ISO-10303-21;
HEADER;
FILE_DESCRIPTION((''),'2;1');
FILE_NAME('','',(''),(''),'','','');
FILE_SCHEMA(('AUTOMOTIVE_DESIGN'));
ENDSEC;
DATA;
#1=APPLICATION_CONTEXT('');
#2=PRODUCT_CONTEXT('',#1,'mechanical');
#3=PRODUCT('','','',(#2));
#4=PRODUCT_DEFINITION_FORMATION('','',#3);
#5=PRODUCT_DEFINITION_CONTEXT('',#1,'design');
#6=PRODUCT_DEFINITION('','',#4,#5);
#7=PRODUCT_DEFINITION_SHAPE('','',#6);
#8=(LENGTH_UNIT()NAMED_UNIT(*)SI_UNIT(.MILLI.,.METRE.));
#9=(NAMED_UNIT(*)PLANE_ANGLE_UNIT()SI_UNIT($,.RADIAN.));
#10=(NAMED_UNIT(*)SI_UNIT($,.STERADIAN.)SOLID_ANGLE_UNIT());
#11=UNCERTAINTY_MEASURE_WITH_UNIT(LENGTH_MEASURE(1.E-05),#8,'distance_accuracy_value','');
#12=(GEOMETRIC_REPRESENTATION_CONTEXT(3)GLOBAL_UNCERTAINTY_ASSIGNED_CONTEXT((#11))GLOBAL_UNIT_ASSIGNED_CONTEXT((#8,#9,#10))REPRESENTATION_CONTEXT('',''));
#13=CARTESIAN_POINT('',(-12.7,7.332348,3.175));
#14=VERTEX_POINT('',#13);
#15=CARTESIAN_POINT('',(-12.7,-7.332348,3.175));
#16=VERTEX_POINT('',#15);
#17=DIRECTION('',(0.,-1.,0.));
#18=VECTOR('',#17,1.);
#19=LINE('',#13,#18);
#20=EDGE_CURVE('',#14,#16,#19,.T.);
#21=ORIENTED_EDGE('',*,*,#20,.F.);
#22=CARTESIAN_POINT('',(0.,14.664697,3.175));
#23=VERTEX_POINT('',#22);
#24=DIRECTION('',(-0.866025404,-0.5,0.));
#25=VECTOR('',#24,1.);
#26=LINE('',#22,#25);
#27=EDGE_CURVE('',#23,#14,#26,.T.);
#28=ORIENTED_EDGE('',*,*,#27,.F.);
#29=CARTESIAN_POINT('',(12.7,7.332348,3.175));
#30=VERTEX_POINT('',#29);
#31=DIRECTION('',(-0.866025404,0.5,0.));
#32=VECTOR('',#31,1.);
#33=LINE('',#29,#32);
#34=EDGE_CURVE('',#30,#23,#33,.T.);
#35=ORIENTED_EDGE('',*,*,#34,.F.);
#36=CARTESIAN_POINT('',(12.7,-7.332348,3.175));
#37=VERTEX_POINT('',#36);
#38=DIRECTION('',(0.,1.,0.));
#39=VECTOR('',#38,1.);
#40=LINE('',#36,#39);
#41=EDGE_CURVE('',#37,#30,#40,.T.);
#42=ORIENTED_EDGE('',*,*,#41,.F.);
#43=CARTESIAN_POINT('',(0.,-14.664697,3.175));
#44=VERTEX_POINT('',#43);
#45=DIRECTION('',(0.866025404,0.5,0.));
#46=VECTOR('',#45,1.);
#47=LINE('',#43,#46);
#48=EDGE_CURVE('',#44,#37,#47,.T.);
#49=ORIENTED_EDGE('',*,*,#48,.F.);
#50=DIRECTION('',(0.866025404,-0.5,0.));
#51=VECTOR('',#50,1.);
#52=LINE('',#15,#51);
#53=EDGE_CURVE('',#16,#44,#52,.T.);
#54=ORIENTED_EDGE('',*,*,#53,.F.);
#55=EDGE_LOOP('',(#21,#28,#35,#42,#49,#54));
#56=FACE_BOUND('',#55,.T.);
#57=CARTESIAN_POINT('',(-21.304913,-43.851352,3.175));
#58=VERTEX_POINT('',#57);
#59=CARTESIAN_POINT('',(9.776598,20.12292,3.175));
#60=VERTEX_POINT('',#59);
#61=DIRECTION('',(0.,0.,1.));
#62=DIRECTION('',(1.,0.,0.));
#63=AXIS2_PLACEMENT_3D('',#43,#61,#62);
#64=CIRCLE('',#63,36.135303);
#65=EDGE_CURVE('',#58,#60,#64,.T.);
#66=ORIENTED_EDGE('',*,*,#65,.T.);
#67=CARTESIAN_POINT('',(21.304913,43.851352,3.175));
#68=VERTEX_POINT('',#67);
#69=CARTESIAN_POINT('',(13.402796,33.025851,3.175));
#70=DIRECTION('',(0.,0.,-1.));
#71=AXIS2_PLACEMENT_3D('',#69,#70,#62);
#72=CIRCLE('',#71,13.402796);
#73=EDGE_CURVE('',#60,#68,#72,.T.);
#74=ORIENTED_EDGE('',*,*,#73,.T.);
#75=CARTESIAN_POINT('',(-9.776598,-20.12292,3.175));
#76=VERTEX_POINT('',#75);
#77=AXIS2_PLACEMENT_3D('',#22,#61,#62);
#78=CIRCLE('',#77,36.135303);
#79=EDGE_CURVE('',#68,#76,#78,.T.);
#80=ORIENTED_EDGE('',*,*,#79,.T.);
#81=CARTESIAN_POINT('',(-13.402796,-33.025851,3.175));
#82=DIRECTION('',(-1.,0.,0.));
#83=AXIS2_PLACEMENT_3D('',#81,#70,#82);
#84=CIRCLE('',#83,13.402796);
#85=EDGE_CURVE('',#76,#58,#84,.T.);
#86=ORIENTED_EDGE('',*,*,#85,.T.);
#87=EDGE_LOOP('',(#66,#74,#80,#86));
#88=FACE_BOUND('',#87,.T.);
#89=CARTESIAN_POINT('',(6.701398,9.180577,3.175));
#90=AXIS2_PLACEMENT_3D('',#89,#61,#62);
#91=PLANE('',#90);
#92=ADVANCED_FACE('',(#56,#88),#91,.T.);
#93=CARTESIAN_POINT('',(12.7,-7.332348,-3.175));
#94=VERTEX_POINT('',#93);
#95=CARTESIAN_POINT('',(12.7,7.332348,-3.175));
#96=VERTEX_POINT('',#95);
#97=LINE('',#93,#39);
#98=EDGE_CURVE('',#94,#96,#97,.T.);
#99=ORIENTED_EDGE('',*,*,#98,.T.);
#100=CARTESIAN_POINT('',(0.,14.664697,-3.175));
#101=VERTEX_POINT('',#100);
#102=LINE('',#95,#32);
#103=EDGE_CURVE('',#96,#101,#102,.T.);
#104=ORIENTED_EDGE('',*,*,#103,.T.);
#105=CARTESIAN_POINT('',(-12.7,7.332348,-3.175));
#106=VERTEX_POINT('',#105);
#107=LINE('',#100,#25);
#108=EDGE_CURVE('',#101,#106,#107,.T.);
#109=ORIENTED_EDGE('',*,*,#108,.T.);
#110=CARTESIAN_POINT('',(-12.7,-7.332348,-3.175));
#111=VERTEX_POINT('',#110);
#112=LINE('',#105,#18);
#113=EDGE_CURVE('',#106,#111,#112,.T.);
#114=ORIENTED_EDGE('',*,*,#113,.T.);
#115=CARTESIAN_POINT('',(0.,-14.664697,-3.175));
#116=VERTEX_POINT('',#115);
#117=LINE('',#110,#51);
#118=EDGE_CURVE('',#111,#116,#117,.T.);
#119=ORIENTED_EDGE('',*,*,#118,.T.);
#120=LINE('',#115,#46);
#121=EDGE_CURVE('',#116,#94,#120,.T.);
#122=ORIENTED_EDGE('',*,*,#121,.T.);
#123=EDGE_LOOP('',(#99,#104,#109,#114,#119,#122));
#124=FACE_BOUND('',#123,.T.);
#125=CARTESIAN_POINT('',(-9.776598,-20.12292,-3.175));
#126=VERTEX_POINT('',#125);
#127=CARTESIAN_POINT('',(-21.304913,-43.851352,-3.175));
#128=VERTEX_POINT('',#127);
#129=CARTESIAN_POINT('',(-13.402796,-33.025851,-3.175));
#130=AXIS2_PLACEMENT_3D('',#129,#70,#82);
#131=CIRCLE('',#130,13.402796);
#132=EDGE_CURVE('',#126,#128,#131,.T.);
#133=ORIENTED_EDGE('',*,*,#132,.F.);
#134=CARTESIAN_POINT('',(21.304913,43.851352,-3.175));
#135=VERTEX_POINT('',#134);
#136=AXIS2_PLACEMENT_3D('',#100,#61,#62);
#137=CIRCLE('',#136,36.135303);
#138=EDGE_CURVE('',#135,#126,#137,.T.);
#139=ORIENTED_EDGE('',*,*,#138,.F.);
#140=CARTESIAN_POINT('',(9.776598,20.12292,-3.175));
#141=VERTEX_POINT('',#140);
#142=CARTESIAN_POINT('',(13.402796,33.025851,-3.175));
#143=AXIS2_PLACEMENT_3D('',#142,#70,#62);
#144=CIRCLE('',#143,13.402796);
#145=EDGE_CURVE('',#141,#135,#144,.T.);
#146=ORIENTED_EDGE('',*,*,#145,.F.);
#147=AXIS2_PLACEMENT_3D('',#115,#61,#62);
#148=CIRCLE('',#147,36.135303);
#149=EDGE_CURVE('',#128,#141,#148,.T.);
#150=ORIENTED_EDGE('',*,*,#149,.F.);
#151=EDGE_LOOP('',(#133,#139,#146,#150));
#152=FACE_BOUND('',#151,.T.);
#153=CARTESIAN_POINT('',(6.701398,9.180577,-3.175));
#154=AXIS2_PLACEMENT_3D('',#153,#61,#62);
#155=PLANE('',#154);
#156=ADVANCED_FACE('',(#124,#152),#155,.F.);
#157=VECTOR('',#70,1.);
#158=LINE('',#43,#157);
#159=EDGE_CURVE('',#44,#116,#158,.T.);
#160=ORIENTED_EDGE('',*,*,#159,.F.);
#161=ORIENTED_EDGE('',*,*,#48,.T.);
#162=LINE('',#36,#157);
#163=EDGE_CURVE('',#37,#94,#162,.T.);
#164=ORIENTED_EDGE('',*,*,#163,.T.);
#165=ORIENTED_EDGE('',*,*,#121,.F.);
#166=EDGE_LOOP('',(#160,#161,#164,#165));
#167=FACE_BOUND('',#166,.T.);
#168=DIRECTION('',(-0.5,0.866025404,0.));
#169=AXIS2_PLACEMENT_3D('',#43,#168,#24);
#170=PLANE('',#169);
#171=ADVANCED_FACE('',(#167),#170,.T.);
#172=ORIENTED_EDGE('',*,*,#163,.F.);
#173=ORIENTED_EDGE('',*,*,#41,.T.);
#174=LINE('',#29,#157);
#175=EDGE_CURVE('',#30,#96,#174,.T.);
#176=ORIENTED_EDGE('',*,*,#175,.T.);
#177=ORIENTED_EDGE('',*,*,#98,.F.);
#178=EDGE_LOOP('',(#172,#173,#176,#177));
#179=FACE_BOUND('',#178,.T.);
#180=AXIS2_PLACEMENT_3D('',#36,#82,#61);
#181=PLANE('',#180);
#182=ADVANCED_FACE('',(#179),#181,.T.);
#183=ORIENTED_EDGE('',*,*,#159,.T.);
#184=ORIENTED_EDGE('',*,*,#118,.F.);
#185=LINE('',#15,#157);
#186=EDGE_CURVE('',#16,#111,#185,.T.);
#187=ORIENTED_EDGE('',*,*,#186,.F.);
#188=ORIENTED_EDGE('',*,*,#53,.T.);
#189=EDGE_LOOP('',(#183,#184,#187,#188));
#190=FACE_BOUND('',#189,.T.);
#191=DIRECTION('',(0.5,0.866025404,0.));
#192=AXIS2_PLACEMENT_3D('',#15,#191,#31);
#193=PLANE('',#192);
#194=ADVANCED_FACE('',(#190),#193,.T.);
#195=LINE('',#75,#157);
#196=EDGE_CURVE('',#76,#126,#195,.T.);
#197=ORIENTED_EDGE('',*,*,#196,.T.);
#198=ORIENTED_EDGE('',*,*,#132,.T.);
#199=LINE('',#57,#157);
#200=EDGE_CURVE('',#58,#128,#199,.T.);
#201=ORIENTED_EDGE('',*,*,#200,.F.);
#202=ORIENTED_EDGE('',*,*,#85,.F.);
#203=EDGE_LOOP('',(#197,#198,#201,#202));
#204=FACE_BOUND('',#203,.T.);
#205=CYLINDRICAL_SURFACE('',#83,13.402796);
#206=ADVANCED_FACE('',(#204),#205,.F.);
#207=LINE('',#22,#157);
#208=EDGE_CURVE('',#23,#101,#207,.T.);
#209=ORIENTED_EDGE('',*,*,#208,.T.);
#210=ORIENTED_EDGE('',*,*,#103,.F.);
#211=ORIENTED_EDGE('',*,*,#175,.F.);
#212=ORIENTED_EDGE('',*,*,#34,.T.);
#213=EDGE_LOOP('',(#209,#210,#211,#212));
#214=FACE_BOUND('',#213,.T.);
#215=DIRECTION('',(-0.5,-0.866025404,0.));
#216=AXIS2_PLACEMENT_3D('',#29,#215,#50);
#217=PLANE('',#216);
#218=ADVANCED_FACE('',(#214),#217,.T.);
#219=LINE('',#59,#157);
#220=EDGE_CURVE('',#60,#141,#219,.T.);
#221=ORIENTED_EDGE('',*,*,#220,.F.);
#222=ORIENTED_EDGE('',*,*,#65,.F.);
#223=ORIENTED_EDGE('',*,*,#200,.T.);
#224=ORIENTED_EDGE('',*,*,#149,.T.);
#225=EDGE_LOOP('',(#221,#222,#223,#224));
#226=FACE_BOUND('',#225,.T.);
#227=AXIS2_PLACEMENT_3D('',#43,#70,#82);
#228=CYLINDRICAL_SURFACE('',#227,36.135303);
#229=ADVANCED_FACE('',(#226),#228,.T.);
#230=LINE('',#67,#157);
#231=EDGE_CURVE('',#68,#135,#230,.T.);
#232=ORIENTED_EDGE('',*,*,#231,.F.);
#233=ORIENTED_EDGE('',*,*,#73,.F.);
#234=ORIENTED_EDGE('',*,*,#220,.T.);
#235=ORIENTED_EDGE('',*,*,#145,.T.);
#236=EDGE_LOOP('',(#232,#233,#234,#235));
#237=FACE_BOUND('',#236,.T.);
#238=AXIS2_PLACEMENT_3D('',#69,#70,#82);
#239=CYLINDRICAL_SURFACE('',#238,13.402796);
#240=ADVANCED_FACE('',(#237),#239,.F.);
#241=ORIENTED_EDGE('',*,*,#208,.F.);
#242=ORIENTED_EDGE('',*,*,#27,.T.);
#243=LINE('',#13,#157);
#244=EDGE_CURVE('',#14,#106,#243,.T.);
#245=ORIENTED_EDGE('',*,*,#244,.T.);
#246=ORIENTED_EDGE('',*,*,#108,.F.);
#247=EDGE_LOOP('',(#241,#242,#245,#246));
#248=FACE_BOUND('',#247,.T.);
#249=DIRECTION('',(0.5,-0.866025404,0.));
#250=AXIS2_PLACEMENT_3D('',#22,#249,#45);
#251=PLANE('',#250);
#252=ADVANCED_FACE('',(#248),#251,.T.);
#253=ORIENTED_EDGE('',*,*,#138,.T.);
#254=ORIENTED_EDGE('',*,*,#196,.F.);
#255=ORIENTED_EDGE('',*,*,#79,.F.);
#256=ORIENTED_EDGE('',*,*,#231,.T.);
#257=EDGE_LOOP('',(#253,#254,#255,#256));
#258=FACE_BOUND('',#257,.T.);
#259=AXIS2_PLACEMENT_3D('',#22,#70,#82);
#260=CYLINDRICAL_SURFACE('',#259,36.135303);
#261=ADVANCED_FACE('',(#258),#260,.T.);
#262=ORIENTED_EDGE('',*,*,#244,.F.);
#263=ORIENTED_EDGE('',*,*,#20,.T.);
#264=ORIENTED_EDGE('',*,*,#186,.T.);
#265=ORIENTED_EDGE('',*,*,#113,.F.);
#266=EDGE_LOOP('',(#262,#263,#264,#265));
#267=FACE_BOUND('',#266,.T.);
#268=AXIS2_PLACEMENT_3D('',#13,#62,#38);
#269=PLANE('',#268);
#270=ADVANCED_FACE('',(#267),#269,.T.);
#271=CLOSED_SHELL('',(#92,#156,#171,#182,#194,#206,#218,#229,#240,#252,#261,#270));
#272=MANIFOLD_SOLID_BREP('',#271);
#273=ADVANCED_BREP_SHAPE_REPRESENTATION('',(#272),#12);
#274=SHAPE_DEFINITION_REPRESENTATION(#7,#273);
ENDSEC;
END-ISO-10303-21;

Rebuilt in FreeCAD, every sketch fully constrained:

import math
import FreeCAD as App
import Part
import Sketcher
from FreeCAD import Vector
Q = App.Units.Quantity

doc = App.newDocument("Part")
body = doc.addObject("PartDesign::Body", "Body")

# Sketch on XY plane
sketch1 = doc.addObject("Sketcher::SketchObject", "Sketch")
body.addObject(sketch1)
sketch1.AttachmentSupport = (doc.XY_Plane, [""])
sketch1.MapMode = "FlatFace"
sketch1.addGeometry([
    Part.ArcOfCircle(Part.Circle(Vector(0, -15, 0), Vector(0, 0, 1), 36), math.radians(-126), math.radians(74)),  # 0
    Part.ArcOfCircle(Part.Circle(Vector(13, 33, 0), Vector(0, 0, 1), 13), math.radians(54), math.radians(254)),  # 1
    Part.ArcOfCircle(Part.Circle(Vector(0, 15, 0), Vector(0, 0, 1), 36), math.radians(54), math.radians(254)),  # 2
    Part.ArcOfCircle(Part.Circle(Vector(-13, -33, 0), Vector(0, 0, 1), 13), math.radians(-126), math.radians(74)),  # 3
    Part.LineSegment(Vector(-13, 7, 0), Vector(0, 15, 0)),  # 4
    Part.LineSegment(Vector(0, 15, 0), Vector(13, 7, 0)),  # 5
    Part.LineSegment(Vector(13, 7, 0), Vector(13, -7, 0)),  # 6
    Part.LineSegment(Vector(13, -7, 0), Vector(0, -15, 0)),  # 7
    Part.LineSegment(Vector(0, -15, 0), Vector(-13, -7, 0)),  # 8
    Part.LineSegment(Vector(-13, -7, 0), Vector(-13, 7, 0)),  # 9
], False)
sketch1.addConstraint([
    Sketcher.Constraint("Tangent", 0, 2, 1, 2),
    Sketcher.Constraint("Tangent", 1, 1, 2, 1),
    Sketcher.Constraint("Tangent", 2, 2, 3, 2),
    Sketcher.Constraint("Tangent", 3, 1, 0, 1),
    Sketcher.Constraint("Coincident", 4, 2, 5, 1),
    Sketcher.Constraint("Coincident", 5, 2, 6, 1),
    Sketcher.Constraint("Coincident", 6, 2, 7, 1),
    Sketcher.Constraint("Coincident", 7, 2, 8, 1),
    Sketcher.Constraint("Coincident", 8, 2, 9, 1),
    Sketcher.Constraint("Coincident", 9, 2, 4, 1),
    Sketcher.Constraint("Vertical", 6),
    Sketcher.Constraint("Vertical", 9),
    Sketcher.Constraint("Coincident", 4, 2, 2, 3),
    Sketcher.Constraint("Coincident", 7, 2, 0, 3),
    Sketcher.Constraint("Equal", 0, 2),
    Sketcher.Constraint("Equal", 1, 3),
    Sketcher.Constraint("Symmetric", 0, 3, 2, 3, -1, 1),
    Sketcher.Constraint("Symmetric", 5, 2, 8, 2, -1, 1),
    Sketcher.Constraint("PointOnObject", 0, 3, -2),
    Sketcher.Constraint("Parallel", 4, 7),
    Sketcher.Constraint("Horizontal", 6, 2, 8, 2),
    Sketcher.Constraint("Angle", 4, Q("30 deg")),
    Sketcher.Constraint("DistanceX", -1, 1, 5, 2, Q("0.5 in")),
    Sketcher.Constraint("Radius", 0, Q("36.135303 mm")),
    Sketcher.Constraint("Radius", 1, Q("13.402796 mm")),
    Sketcher.Constraint("DistanceX", -1, 1, 0, 2, Q("9.776598 mm")),
])
pad1 = doc.addObject("PartDesign::Pad", "Pad")
body.addObject(pad1)
pad1.Profile = sketch1
pad1.Length = Q("0.25 in")
pad1.Midplane = True

doc.recompute()
